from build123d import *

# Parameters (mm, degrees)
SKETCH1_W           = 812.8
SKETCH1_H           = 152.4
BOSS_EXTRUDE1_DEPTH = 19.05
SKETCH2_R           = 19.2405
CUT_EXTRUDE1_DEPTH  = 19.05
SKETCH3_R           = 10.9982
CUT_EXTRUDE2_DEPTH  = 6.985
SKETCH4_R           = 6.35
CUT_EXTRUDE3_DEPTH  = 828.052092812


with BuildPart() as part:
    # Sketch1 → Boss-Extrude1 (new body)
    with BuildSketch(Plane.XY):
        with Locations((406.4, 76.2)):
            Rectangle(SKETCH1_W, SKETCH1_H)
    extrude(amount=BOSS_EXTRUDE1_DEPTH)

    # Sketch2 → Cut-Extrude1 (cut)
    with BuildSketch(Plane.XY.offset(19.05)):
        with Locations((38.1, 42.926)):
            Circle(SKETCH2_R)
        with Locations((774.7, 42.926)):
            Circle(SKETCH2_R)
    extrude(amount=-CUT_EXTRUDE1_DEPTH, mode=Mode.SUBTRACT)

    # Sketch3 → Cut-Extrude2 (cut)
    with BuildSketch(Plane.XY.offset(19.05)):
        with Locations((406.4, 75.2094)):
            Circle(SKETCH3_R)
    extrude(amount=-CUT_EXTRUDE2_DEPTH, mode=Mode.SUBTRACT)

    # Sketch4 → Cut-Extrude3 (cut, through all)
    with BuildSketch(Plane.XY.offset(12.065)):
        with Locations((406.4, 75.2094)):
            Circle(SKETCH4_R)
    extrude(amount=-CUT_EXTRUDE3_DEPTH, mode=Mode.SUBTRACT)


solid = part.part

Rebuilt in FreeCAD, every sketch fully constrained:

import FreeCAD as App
import Part
import Sketcher
Q = App.Units.Quantity


def add_polygon(sketch, points):
    """Adds a closed chain of lines whose ends are joined by coincident constraints."""
    first, n = sketch.GeometryCount, len(points)
    for a, b in zip(points, points[1:] + points[:1]):
        sketch.addGeometry(Part.LineSegment(App.Vector(*a, 0), App.Vector(*b, 0)), False)
    for i in range(n):
        sketch.addConstraint(Sketcher.Constraint("Coincident", first + i, 2, first + (i + 1) % n, 1))

doc = App.newDocument("Part")
body = doc.addObject("PartDesign::Body", "Body")

sketch1 = doc.addObject("Sketcher::SketchObject", "Sketch")
body.addObject(sketch1)
sketch1.AttachmentSupport = (doc.XY_Plane, [""])
sketch1.MapMode = "FlatFace"
add_polygon(sketch1, [(0, 152), (0, 0), (813, 0), (813, 152)])
sketch1.addConstraint([
    Sketcher.Constraint("Vertical", 0),
    Sketcher.Constraint("Horizontal", 1),
    Sketcher.Constraint("Vertical", 2),
    Sketcher.Constraint("Horizontal", 3),
    Sketcher.Constraint("Coincident", 0, 2, -1, 1),
    Sketcher.Constraint("DistanceX", 1, 1, 1, 2, Q("32 in")),
    Sketcher.Constraint("DistanceY", 0, 2, 0, 1, Q("6 in")),
])
pad1 = doc.addObject("PartDesign::Pad", "Pad")
body.addObject(pad1)
pad1.Profile = sketch1
pad1.Length = Q("0.75 in")

sketch2 = doc.addObject("Sketcher::SketchObject", "Sketch001")
body.addObject(sketch2)
sketch2.AttachmentSupport = (doc.XY_Plane, [""])
sketch2.MapMode = "FlatFace"
sketch2.AttachmentOffset = App.Placement(App.Vector(0, 0, 0.75 * 25.4), App.Rotation())
sketch2.addGeometry([
    Part.Circle(App.Vector(38, 43, 0), App.Vector(0, 0, 1), 19),
    Part.Circle(App.Vector(775, 43, 0), App.Vector(0, 0, 1), 19),
], False)
sketch2.addConstraint([
    Sketcher.Constraint("Equal", 0, 1),
    Sketcher.Constraint("Horizontal", 0, 3, 1, 3),
    Sketcher.Constraint("Diameter", 0, Q("1.515 in")),
    Sketcher.Constraint("DistanceX", 0, 3, 1, 3, Q("29 in")),
    Sketcher.Constraint("DistanceX", -1, 1, 0, 3, Q("1.5 in")),
    Sketcher.Constraint("DistanceY", -1, 1, 0, 3, Q("1.69 in")),
])
pocket1 = doc.addObject("PartDesign::Pocket", "Pocket")
body.addObject(pocket1)
pocket1.Profile = sketch2
pocket1.Length = Q("0.75 in")

sketch3 = doc.addObject("Sketcher::SketchObject", "Sketch002")
body.addObject(sketch3)
sketch3.AttachmentSupport = (doc.XY_Plane, [""])
sketch3.MapMode = "FlatFace"
sketch3.AttachmentOffset = App.Placement(App.Vector(0, 0, 0.75 * 25.4), App.Rotation())
sketch3.addGeometry(Part.Circle(App.Vector(406, 75, 0), App.Vector(0, 0, 1), 11), False)
sketch3.addConstraint([
    Sketcher.Constraint("Diameter", 0, Q("0.866 in")),
    Sketcher.Constraint("DistanceX", -1, 1, 0, 3, Q("16 in")),
    Sketcher.Constraint("DistanceY", -1, 1, 0, 3, Q("2.961 in")),
])
pocket2 = doc.addObject("PartDesign::Pocket", "Pocket001")
body.addObject(pocket2)
pocket2.Profile = sketch3
pocket2.Length = Q("0.275 in")

sketch4 = doc.addObject("Sketcher::SketchObject", "Sketch003")
body.addObject(sketch4)
sketch4.AttachmentSupport = (doc.XY_Plane, [""])
sketch4.MapMode = "FlatFace"
sketch4.AttachmentOffset = App.Placement(App.Vector(0, 0, 0.475 * 25.4), App.Rotation())
sketch4.addGeometry(Part.Circle(App.Vector(406, 75, 0), App.Vector(0, 0, 1), 6), False)
sketch4.addConstraint([
    Sketcher.Constraint("Diameter", 0, Q("0.5 in")),
    Sketcher.Constraint("DistanceX", -1, 1, 0, 3, Q("16 in")),
    Sketcher.Constraint("DistanceY", -1, 1, 0, 3, Q("2.961 in")),
])
pocket3 = doc.addObject("PartDesign::Pocket", "Pocket002")
body.addObject(pocket3)
pocket3.Profile = sketch4
pocket3.Type = "ThroughAll"

doc.recompute()
